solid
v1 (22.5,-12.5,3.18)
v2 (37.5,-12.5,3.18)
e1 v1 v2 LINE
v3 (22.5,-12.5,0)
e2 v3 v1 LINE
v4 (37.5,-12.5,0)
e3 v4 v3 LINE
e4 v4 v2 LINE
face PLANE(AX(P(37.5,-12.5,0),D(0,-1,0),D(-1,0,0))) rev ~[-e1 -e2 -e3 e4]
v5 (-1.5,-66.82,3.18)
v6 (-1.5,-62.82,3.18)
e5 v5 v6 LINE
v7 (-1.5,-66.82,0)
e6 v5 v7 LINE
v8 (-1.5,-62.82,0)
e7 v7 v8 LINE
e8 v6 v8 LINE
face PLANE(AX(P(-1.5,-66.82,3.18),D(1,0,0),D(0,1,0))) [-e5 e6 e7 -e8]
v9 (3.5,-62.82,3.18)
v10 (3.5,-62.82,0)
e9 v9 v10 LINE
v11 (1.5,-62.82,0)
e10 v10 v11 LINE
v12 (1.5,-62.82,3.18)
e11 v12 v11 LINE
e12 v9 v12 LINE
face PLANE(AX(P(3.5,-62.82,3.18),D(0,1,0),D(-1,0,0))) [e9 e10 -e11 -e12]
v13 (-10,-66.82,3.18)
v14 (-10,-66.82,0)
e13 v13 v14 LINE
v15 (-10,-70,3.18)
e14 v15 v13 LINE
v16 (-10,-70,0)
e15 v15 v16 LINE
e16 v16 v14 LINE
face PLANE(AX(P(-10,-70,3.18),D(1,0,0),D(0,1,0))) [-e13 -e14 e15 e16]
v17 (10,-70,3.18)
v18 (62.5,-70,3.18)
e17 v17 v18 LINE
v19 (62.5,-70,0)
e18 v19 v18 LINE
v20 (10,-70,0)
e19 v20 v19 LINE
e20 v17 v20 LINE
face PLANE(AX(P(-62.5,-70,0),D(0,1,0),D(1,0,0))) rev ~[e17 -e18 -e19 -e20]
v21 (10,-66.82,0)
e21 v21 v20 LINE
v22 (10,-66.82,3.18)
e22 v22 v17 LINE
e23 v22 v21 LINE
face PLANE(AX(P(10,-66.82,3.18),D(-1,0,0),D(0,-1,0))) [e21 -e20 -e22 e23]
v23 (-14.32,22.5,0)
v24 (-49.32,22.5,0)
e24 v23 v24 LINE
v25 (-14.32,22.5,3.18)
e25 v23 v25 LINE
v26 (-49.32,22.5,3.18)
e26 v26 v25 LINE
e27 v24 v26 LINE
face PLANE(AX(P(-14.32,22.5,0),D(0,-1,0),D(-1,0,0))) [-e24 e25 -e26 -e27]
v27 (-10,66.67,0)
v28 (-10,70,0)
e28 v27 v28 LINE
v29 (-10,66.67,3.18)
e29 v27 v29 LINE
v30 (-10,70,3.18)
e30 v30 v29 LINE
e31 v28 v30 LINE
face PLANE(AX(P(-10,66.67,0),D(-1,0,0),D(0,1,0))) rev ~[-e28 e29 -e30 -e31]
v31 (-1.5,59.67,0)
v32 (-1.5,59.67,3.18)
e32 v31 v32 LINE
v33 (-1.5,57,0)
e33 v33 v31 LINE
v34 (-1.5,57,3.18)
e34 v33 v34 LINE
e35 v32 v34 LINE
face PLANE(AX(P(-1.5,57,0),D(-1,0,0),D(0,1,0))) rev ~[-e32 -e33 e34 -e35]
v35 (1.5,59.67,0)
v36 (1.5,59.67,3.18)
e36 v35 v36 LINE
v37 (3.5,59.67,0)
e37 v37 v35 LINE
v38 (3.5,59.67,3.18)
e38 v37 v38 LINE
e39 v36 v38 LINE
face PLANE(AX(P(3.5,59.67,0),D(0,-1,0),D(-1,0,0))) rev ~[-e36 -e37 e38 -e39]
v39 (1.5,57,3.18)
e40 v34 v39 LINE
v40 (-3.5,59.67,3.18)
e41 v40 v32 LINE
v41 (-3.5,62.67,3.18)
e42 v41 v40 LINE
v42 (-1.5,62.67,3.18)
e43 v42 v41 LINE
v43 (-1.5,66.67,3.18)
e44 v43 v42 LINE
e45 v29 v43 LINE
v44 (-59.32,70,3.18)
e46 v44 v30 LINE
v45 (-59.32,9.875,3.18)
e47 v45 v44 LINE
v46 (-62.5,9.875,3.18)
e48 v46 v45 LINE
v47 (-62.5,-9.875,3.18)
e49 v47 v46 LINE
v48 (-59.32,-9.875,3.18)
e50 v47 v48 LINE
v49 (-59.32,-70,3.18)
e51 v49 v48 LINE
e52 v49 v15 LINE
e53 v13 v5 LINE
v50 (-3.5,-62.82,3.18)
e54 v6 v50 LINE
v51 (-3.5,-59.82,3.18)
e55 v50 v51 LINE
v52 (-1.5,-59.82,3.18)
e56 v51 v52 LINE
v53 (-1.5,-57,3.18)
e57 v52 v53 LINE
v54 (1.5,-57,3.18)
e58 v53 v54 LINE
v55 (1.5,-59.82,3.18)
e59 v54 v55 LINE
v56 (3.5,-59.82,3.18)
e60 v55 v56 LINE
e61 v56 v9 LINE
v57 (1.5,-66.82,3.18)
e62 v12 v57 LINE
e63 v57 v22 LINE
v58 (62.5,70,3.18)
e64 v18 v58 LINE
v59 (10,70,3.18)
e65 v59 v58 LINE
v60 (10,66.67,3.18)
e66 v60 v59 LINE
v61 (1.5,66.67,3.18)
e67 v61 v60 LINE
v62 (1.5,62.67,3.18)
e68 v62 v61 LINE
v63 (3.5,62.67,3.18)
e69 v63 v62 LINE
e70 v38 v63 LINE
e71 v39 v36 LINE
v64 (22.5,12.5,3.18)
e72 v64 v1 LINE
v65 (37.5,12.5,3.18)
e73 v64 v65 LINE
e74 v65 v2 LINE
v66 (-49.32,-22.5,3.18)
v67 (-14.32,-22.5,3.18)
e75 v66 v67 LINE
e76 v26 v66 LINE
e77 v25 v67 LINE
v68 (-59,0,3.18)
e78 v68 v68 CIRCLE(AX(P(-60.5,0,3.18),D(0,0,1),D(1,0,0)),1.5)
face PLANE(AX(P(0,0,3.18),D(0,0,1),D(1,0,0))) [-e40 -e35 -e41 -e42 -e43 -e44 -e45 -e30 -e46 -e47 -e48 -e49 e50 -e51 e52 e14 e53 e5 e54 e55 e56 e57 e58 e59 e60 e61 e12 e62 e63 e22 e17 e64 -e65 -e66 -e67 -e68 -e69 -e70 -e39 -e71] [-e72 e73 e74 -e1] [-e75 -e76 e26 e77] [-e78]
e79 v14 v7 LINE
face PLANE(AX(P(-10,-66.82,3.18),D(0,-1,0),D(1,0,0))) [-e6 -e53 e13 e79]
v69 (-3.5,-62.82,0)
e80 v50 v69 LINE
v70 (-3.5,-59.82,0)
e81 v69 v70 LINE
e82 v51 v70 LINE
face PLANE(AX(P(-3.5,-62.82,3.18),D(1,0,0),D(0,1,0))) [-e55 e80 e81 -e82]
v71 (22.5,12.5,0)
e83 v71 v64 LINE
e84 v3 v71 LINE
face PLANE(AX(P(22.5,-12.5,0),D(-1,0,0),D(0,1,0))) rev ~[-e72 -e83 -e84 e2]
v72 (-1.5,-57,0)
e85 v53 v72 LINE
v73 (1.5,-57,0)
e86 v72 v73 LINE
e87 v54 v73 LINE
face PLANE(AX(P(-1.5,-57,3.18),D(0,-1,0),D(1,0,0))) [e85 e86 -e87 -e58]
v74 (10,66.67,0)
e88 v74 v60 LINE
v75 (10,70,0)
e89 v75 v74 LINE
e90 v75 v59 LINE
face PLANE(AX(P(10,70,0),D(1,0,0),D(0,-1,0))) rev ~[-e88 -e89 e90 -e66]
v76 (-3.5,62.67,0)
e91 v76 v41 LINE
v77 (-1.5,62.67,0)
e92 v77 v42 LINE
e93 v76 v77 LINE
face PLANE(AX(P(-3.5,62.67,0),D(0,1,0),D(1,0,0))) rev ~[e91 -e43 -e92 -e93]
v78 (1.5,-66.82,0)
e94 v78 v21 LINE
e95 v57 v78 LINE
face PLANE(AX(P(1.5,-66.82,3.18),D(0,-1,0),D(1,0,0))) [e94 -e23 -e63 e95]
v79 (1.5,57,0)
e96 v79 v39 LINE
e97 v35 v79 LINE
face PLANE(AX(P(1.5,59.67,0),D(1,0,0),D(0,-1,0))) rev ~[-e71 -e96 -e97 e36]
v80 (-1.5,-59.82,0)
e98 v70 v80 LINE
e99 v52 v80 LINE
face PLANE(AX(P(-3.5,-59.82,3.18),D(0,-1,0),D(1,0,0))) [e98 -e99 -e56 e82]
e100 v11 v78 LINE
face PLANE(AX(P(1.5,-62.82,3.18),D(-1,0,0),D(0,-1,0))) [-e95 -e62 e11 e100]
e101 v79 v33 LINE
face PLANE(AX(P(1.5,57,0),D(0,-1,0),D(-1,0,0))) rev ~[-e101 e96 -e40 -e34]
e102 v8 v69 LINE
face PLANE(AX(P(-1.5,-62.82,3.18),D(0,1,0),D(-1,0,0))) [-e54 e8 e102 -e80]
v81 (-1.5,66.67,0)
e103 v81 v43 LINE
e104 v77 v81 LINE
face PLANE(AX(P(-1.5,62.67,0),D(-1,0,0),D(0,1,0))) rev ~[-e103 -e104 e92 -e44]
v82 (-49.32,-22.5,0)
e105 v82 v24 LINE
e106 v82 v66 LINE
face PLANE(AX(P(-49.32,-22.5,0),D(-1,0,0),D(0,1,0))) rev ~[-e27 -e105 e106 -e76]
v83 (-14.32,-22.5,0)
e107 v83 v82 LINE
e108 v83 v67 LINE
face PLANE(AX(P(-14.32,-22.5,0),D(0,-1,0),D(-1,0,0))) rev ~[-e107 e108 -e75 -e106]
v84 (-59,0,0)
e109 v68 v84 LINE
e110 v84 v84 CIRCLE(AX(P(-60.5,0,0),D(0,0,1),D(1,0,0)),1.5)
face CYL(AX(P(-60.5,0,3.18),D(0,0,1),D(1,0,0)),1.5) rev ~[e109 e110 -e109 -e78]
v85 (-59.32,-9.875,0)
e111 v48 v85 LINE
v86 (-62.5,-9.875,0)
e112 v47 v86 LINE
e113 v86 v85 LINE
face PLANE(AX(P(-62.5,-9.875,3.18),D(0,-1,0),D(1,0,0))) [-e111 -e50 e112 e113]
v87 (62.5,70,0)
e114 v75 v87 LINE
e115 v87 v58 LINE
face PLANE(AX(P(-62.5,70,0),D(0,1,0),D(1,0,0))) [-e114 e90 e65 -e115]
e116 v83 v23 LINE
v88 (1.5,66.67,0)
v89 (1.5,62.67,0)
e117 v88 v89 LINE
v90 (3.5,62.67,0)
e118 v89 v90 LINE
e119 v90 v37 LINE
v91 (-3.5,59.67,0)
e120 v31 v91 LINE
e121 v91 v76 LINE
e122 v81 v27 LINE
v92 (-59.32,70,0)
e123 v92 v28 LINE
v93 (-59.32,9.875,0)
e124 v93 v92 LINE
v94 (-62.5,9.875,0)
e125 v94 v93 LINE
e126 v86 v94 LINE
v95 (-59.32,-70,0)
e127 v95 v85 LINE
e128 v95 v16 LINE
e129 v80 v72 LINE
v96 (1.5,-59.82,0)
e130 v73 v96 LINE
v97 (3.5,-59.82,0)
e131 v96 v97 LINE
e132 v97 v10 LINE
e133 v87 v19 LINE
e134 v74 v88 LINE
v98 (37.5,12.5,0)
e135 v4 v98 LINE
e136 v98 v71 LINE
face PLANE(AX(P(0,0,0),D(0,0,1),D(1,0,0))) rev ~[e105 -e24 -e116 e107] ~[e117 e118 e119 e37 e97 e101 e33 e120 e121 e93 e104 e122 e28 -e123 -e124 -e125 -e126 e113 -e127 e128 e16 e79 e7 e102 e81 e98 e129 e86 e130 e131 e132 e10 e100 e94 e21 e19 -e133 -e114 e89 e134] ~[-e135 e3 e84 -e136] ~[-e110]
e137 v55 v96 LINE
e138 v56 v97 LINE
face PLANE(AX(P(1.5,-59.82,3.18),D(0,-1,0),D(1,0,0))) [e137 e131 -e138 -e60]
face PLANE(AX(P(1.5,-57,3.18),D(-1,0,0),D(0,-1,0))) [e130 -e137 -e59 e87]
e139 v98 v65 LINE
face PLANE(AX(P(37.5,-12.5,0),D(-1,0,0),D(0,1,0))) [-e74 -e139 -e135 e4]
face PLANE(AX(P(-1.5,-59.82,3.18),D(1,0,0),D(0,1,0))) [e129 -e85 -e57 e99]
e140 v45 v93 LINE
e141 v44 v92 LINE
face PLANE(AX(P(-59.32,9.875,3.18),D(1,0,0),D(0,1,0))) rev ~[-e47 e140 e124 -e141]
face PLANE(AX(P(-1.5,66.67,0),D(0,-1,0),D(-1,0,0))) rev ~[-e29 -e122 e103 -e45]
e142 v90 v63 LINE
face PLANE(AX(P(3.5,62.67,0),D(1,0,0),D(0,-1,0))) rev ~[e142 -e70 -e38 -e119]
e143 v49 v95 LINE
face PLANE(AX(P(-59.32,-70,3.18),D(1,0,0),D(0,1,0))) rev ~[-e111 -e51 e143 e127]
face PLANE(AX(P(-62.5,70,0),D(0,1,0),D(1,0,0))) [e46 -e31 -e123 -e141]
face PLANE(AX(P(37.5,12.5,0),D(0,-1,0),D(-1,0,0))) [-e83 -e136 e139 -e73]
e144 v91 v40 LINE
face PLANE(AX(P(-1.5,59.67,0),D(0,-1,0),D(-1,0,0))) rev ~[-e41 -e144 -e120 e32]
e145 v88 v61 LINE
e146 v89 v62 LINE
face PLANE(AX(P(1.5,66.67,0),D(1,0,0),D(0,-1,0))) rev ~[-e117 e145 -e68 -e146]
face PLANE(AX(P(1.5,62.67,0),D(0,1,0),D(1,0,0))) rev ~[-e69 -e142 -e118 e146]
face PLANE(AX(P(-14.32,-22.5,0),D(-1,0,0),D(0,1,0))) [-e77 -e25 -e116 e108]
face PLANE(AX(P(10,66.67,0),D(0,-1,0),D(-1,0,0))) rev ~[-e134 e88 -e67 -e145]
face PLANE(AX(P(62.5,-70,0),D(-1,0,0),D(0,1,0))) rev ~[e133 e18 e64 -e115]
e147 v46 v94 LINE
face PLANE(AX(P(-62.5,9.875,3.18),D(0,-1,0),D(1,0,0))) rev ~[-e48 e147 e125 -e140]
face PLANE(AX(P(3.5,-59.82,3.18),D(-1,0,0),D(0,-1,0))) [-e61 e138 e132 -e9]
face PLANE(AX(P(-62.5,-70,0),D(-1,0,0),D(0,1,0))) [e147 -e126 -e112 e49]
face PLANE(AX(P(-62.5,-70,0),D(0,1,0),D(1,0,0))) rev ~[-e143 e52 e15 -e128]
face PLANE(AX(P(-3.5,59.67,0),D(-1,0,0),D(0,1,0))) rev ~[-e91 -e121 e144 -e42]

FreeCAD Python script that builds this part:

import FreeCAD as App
import Part
import Sketcher


def add_polygon(sketch, points):
    """Adds a closed chain of lines whose ends are joined by coincident constraints."""
    first, n = sketch.GeometryCount, len(points)
    for a, b in zip(points, points[1:] + points[:1]):
        sketch.addGeometry(Part.LineSegment(App.Vector(*a, 0), App.Vector(*b, 0)), False)
    for i in range(n):
        sketch.addConstraint(Sketcher.Constraint("Coincident", first + i, 2, first + (i + 1) % n, 1))

doc = App.newDocument("Part")
body = doc.addObject("PartDesign::Body", "Body")

# Sketch on XY plane
sketch1 = body.newObject("Sketcher::SketchObject", "Sketch")
sketch1.AttachmentSupport = (doc.getObject("XY_Plane"), [""])
sketch1.MapMode = "FlatFace"
add_polygon(sketch1, [(-62, 70), (-62, -70), (62, -70), (62, 70)])  # lines 0-3
sketch1.addConstraint(Sketcher.Constraint("Vertical", 0))
sketch1.addConstraint(Sketcher.Constraint("Horizontal", 1))
sketch1.addConstraint(Sketcher.Constraint("Vertical", 2))
sketch1.addConstraint(Sketcher.Constraint("Horizontal", 3))
sketch1.addConstraint(Sketcher.Constraint("Symmetric", 0, 2, 2, 2, -1, 1))
sketch1.addConstraint(Sketcher.Constraint("DistanceX", 1, 1, 1, 2, 125.0))
sketch1.addConstraint(Sketcher.Constraint("DistanceY", 0, 2, 0, 1, 140.0))
pad1 = body.newObject("PartDesign::Pad", "Pad")
pad1.Profile = sketch1
pad1.Length = 3.18

# Sketch on XY plane
sketch2 = body.newObject("Sketcher::SketchObject", "Sketch001")
sketch2.AttachmentSupport = (doc.getObject("XY_Plane"), [""])
sketch2.MapMode = "FlatFace"
sketch2.AttachmentOffset = App.Placement(App.Vector(0, 0, 3.18), App.Rotation())
sketch2.addGeometry(Part.Circle(App.Vector(-60.5, 0, 0), App.Vector(0, 0, 1), 1.5), False)  # 0
sketch2.addGeometry(Part.Circle(App.Vector(85.5, 0, 0), App.Vector(0, 0, 1), 1.5), False)  # 1
add_polygon(sketch2, [(-62.5, 70), (-62.5, 9.9), (-59.3, 9.9), (-59.3, 70)])  # lines 2-5
add_polygon(sketch2, [(-62.5, -9.9), (-62.5, -70), (-59.3, -70), (-59.3, -9.9)])  # lines 6-9
add_polygon(sketch2, [(62.5, -9.9), (62.5, -73.9), (84.3, -73.9), (84.3, -9.9)])  # lines 10-13
add_polygon(sketch2, [(62.5, 75.1), (62.5, 10.1), (84.3, 10.1), (84.3, 75.1)])  # lines 14-17
add_polygon(sketch2, [(10, -66.8), (1.5, -66.8), (1.5, -62.8), (3.5, -62.8), (3.5, -59.8), (1.5, -59.8), (1.5, -57), (-1.5, -57), (-1.5, -59.8), (-3.5, -59.8), (-3.5, -62.8), (-1.5, -62.8), (-1.5, -66.8), (-10, -66.8), (-10, -70), (10, -70)])  # lines 18-33
sketch2.addConstraint(Sketcher.Constraint("Vertical", 2))
sketch2.addConstraint(Sketcher.Constraint("Horizontal", 3))
sketch2.addConstraint(Sketcher.Constraint("Vertical", 4))
sketch2.addConstraint(Sketcher.Constraint("Horizontal", 5))
sketch2.addConstraint(Sketcher.Constraint("Vertical", 6))
sketch2.addConstraint(Sketcher.Constraint("Horizontal", 7))
sketch2.addConstraint(Sketcher.Constraint("Vertical", 8))
sketch2.addConstraint(Sketcher.Constraint("Horizontal", 9))
sketch2.addConstraint(Sketcher.Constraint("Vertical", 10))
sketch2.addConstraint(Sketcher.Constraint("Horizontal", 11))
sketch2.addConstraint(Sketcher.Constraint("Vertical", 12))
sketch2.addConstraint(Sketcher.Constraint("Horizontal", 13))
sketch2.addConstraint(Sketcher.Constraint("Vertical", 14))
sketch2.addConstraint(Sketcher.Constraint("Horizontal", 15))
sketch2.addConstraint(Sketcher.Constraint("Vertical", 16))
sketch2.addConstraint(Sketcher.Constraint("Horizontal", 17))
sketch2.addConstraint(Sketcher.Constraint("Horizontal", 18))
sketch2.addConstraint(Sketcher.Constraint("Vertical", 19))
sketch2.addConstraint(Sketcher.Constraint("Horizontal", 20))
sketch2.addConstraint(Sketcher.Constraint("Vertical", 21))
sketch2.addConstraint(Sketcher.Constraint("Horizontal", 22))
sketch2.addConstraint(Sketcher.Constraint("Vertical", 23))
sketch2.addConstraint(Sketcher.Constraint("Horizontal", 24))
sketch2.addConstraint(Sketcher.Constraint("Vertical", 25))
sketch2.addConstraint(Sketcher.Constraint("Horizontal", 26))
sketch2.addConstraint(Sketcher.Constraint("Vertical", 27))
sketch2.addConstraint(Sketcher.Constraint("Horizontal", 28))
sketch2.addConstraint(Sketcher.Constraint("Vertical", 29))
sketch2.addConstraint(Sketcher.Constraint("Horizontal", 30))
sketch2.addConstraint(Sketcher.Constraint("Vertical", 31))
sketch2.addConstraint(Sketcher.Constraint("Horizontal", 32))
sketch2.addConstraint(Sketcher.Constraint("Vertical", 33))
sketch2.addConstraint(Sketcher.Constraint("Equal", 0, 1))
sketch2.addConstraint(Sketcher.Constraint("Symmetric", 2, 2, 13, 2, -1, 1))
sketch2.addConstraint(Sketcher.Constraint("Symmetric", 9, 2, 13, 2, -2))
sketch2.addConstraint(Sketcher.Constraint("Symmetric", 22, 2, 25, 2, -2))
sketch2.addConstraint(Sketcher.Constraint("Symmetric", 20, 2, 27, 2, -2))
sketch2.addConstraint(Sketcher.Constraint("Symmetric", 18, 2, 29, 2, -2))
sketch2.addConstraint(Sketcher.Constraint("Symmetric", 4, 2, 7, 2, -1))
sketch2.addConstraint(Sketcher.Constraint("PointOnObject", 0, 3, -1))
sketch2.addConstraint(Sketcher.Constraint("PointOnObject", 1, 3, -1))
sketch2.addConstraint(Sketcher.Constraint("Horizontal", 7, 2, 31, 2))
sketch2.addConstraint(Sketcher.Constraint("Vertical", 13, 2, 14, 2))
sketch2.addConstraint(Sketcher.Constraint("Vertical", 12, 2, 15, 2))
sketch2.addConstraint(Sketcher.Constraint("Vertical", 19, 2, 22, 2))
sketch2.addConstraint(Sketcher.Constraint("Equal", 18, 30))
sketch2.addConstraint(Sketcher.Constraint("Equal", 24, 21))
sketch2.addConstraint(Sketcher.Constraint("Equal", 9, 31))
sketch2.addConstraint(Sketcher.Constraint("Diameter", 0, 3.0))
sketch2.addConstraint(Sketcher.Constraint("DistanceX", 20, 1, 20, 2, 2.0))
sketch2.addConstraint(Sketcher.Constraint("DistanceX", 24, 2, 24, 1, 3.0))
sketch2.addConstraint(Sketcher.Constraint("DistanceX", 32, 1, 32, 2, 20.0))
sketch2.addConstraint(Sketcher.Constraint("DistanceY", 14, 2, 14, 1, 65.0))
sketch2.addConstraint(Sketcher.Constraint("DistanceY", 19, 1, 19, 2, 4.0))
sketch2.addConstraint(Sketcher.Constraint("DistanceY", -1, 1, 4, 2, 70.0))
sketch2.addConstraint(Sketcher.Constraint("DistanceY", 23, 2, -1, 1, 57.0))
sketch2.addConstraint(Sketcher.Constraint("DistanceX", 0, 3, 1, 3, 146.0))
sketch2.addConstraint(Sketcher.Constraint("DistanceX", 2, 2, 0, 3, 2.0))
sketch2.addConstraint(Sketcher.Constraint("DistanceX", 10, 2, 1, 3, 23.0))
sketch2.addConstraint(Sketcher.Constraint("DistanceY", 13, 2, 14, 2, 20.0))
sketch2.addConstraint(Sketcher.Constraint("DistanceX", 3, 1, 3, 2, 3.18))
sketch2.addConstraint(Sketcher.Constraint("DistanceX", 11, 1, 11, 2, 21.82))
sketch2.addConstraint(Sketcher.Constraint("DistanceY", 2, 2, 2, 1, 60.125))
sketch2.addConstraint(Sketcher.Constraint("DistanceY", 10, 2, 10, 1, 64.054089))
pocket1 = body.newObject("PartDesign::Pocket", "Pocket")
pocket1.Profile = sketch2
pocket1.Type = "ThroughAll"

# Sketch on XY plane
sketch3 = body.newObject("Sketcher::SketchObject", "Sketch002")
sketch3.AttachmentSupport = (doc.getObject("XY_Plane"), [""])
sketch3.MapMode = "FlatFace"
add_polygon(sketch3, [(-14, 22), (-14, -22), (-49, -22), (-49, 22)])  # lines 0-3
sketch3.addConstraint(Sketcher.Constraint("Vertical", 0))
sketch3.addConstraint(Sketcher.Constraint("Horizontal", 1))
sketch3.addConstraint(Sketcher.Constraint("Vertical", 2))
sketch3.addConstraint(Sketcher.Constraint("Horizontal", 3))
sketch3.addConstraint(Sketcher.Constraint("DistanceX", 1, 2, 1, 1, 35.0))
sketch3.addConstraint(Sketcher.Constraint("DistanceY", 0, 2, 0, 1, 45.0))
sketch3.addConstraint(Sketcher.Constraint("DistanceY", 0, 2, -1, 1, 22.5))
sketch3.addConstraint(Sketcher.Constraint("DistanceX", 0, 2, -1, 1, 14.32))
pocket2 = body.newObject("PartDesign::Pocket", "Pocket001")
pocket2.Profile = sketch3
pocket2.Type = "ThroughAll"
pocket2.Reversed = True

# Sketch on XY plane
sketch4 = body.newObject("Sketcher::SketchObject", "Sketch003")
sketch4.AttachmentSupport = (doc.getObject("XY_Plane"), [""])
sketch4.MapMode = "FlatFace"
add_polygon(sketch4, [(38, 12), (38, -12), (22, -12), (22, 12)])  # lines 0-3
sketch4.addConstraint(Sketcher.Constraint("Vertical", 0))
sketch4.addConstraint(Sketcher.Constraint("Horizontal", 1))
sketch4.addConstraint(Sketcher.Constraint("Vertical", 2))
sketch4.addConstraint(Sketcher.Constraint("Horizontal", 3))
sketch4.addConstraint(Sketcher.Constraint("DistanceX", 1, 2, 1, 1, 15.0))
sketch4.addConstraint(Sketcher.Constraint("DistanceY", 0, 2, 0, 1, 25.0))
sketch4.addConstraint(Sketcher.Constraint("DistanceX", -1, 1, 0, 2, 37.5))
sketch4.addConstraint(Sketcher.Constraint("DistanceY", 0, 2, -1, 1, 12.5))
pocket3 = body.newObject("PartDesign::Pocket", "Pocket002")
pocket3.Profile = sketch4
pocket3.Type = "ThroughAll"
pocket3.Reversed = True

# Sketch on XY plane
sketch5 = body.newObject("Sketcher::SketchObject", "Sketch004")
sketch5.AttachmentSupport = (doc.getObject("XY_Plane"), [""])
sketch5.MapMode = "FlatFace"
add_polygon(sketch5, [(10, 66.7), (1.5, 66.7), (1.5, 62.7), (3.5, 62.7), (3.5, 59.7), (1.5, 59.7), (1.5, 57), (-1.5, 57), (-1.5, 59.7), (-3.5, 59.7), (-3.5, 62.7), (-1.5, 62.7), (-1.5, 66.7), (-10, 66.7), (-10, 70), (10, 70)])  # lines 0-15
sketch5.addConstraint(Sketcher.Constraint("Horizontal", 0))
sketch5.addConstraint(Sketcher.Constraint("Vertical", 1))
sketch5.addConstraint(Sketcher.Constraint("Horizontal", 2))
sketch5.addConstraint(Sketcher.Constraint("Vertical", 3))
sketch5.addConstraint(Sketcher.Constraint("Horizontal", 4))
sketch5.addConstraint(Sketcher.Constraint("Vertical", 5))
sketch5.addConstraint(Sketcher.Constraint("Horizontal", 6))
sketch5.addConstraint(Sketcher.Constraint("Vertical", 7))
sketch5.addConstraint(Sketcher.Constraint("Horizontal", 8))
sketch5.addConstraint(Sketcher.Constraint("Vertical", 9))
sketch5.addConstraint(Sketcher.Constraint("Horizontal", 10))
sketch5.addConstraint(Sketcher.Constraint("Vertical", 11))
sketch5.addConstraint(Sketcher.Constraint("Horizontal", 12))
sketch5.addConstraint(Sketcher.Constraint("Vertical", 13))
sketch5.addConstraint(Sketcher.Constraint("Horizontal", 14))
sketch5.addConstraint(Sketcher.Constraint("Vertical", 15))
sketch5.addConstraint(Sketcher.Constraint("Symmetric", 4, 2, 7, 2, -2))
sketch5.addConstraint(Sketcher.Constraint("Symmetric", 2, 2, 9, 2, -2))
sketch5.addConstraint(Sketcher.Constraint("Symmetric", 0, 2, 11, 2, -2))
sketch5.addConstraint(Sketcher.Constraint("Vertical", 1, 2, 4, 2))
sketch5.addConstraint(Sketcher.Constraint("Equal", 0, 12))
sketch5.addConstraint(Sketcher.Constraint("Equal", 6, 3))
sketch5.addConstraint(Sketcher.Constraint("DistanceX", 2, 1, 2, 2, 2.0))
sketch5.addConstraint(Sketcher.Constraint("DistanceX", 6, 2, 6, 1, 3.0))
sketch5.addConstraint(Sketcher.Constraint("DistanceX", 14, 1, 14, 2, 20.0))
sketch5.addConstraint(Sketcher.Constraint("DistanceY", 1, 2, 1, 1, 4.0))
sketch5.addConstraint(Sketcher.Constraint("DistanceY", -1, 1, 5, 2, 57.0))
sketch5.addConstraint(Sketcher.Constraint("DistanceY", -1, 1, 13, 2, 70.0))
sketch5.addConstraint(Sketcher.Constraint("DistanceY", 5, 2, 5, 1, 2.67))
pocket4 = body.newObject("PartDesign::Pocket", "Pocket003")
pocket4.Profile = sketch5
pocket4.Length = 10
pocket4.Reversed = True

doc.recompute()
